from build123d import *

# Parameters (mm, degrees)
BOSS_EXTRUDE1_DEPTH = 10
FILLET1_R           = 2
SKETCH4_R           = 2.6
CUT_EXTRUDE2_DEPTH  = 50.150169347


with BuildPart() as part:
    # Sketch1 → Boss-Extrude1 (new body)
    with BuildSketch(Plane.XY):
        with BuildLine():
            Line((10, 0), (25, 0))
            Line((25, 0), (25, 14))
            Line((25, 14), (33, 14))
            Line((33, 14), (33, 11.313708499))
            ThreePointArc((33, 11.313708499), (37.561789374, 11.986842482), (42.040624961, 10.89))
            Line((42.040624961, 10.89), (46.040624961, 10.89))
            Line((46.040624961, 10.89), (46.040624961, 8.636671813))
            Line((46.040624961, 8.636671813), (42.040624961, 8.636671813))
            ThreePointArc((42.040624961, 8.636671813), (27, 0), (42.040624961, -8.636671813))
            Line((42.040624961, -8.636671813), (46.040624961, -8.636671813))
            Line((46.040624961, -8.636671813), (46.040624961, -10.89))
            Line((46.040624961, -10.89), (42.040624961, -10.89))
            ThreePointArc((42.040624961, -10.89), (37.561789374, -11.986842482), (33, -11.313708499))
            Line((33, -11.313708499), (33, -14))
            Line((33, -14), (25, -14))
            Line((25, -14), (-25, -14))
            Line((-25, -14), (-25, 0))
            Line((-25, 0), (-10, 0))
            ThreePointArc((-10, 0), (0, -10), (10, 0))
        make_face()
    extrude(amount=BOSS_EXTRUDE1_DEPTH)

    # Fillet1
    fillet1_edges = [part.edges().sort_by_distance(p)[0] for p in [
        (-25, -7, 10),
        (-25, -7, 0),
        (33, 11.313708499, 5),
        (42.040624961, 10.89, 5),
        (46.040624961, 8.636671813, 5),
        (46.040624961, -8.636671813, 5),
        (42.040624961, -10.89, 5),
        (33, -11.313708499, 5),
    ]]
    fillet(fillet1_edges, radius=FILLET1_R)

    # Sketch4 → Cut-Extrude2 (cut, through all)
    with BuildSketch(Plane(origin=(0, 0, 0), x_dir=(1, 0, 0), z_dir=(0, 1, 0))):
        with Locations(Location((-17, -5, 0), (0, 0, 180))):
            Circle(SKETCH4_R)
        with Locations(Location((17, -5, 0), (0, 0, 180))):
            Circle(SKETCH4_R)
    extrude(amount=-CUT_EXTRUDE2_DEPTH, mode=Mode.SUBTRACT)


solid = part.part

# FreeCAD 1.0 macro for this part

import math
import FreeCAD as App
import Part
import Sketcher
from FreeCAD import Vector
Q = App.Units.Quantity


def edges_at(feature, points):
    """Names of the edges that pass closest to the given points."""
    edges = feature.Shape.Edges
    near = lambda p: min(range(len(edges)), key=lambda i: edges[i].distToShape(Part.Vertex(*p))[0])
    return sorted({f"Edge{near(p) + 1}" for p in points})

doc = App.newDocument("Part")
body = doc.addObject("PartDesign::Body", "Body")

sketch1 = body.newObject("Sketcher::SketchObject", "Sketch")
sketch1.AttachmentSupport = (doc.getObject("XY_Plane"), [""])
sketch1.MapMode = "FlatFace"
sketch1.addGeometry(Part.LineSegment(Vector(25, 0, 0), Vector(10, 0, 0)), False)
sketch1.addGeometry(Part.ArcOfCircle(Part.Circle(Vector(0, 0, 0), Vector(0, 0, 1), 10), math.radians(180), math.radians(360)), False)
sketch1.addGeometry(Part.LineSegment(Vector(-10, 0, 0), Vector(-25, 0, 0)), False)
sketch1.addGeometry(Part.LineSegment(Vector(-25, 0, 0), Vector(-25, -14, 0)), False)
sketch1.addGeometry(Part.LineSegment(Vector(-25, -14, 0), Vector(33, -14, 0)), False)
sketch1.addGeometry(Part.LineSegment(Vector(33, -14, 0), Vector(33, -11.3, 0)), False)
sketch1.addGeometry(Part.ArcOfCircle(Part.Circle(Vector(37, 0, 0), Vector(0, 0, 1), 12), math.radians(-109), math.radians(-65)), False)
sketch1.addGeometry(Part.LineSegment(Vector(42, -10.9, 0), Vector(46, -10.9, 0)), False)
sketch1.addGeometry(Part.LineSegment(Vector(46, -10.9, 0), Vector(46, -8.6, 0)), False)
sketch1.addGeometry(Part.LineSegment(Vector(46, -8.6, 0), Vector(42, -8.6, 0)), False)
sketch1.addGeometry(Part.ArcOfCircle(Part.Circle(Vector(37, 0, 0), Vector(0, 0, 1), 10), math.radians(60), math.radians(300)), False)
sketch1.addGeometry(Part.LineSegment(Vector(42, 8.6, 0), Vector(46, 8.6, 0)), False)
sketch1.addGeometry(Part.LineSegment(Vector(46, 8.6, 0), Vector(46, 10.9, 0)), False)
sketch1.addGeometry(Part.LineSegment(Vector(46, 10.9, 0), Vector(42, 10.9, 0)), False)
sketch1.addGeometry(Part.ArcOfCircle(Part.Circle(Vector(37, 0, 0), Vector(0, 0, 1), 12), math.radians(65), math.radians(109)), False)
sketch1.addGeometry(Part.LineSegment(Vector(33, 11.3, 0), Vector(33, 14, 0)), False)
sketch1.addGeometry(Part.LineSegment(Vector(33, 14, 0), Vector(25, 14, 0)), False)
sketch1.addGeometry(Part.LineSegment(Vector(25, 14, 0), Vector(25, 0, 0)), False)
sketch1.addConstraint(Sketcher.Constraint("Coincident", 0, 2, 1, 2))
sketch1.addConstraint(Sketcher.Constraint("Coincident", 1, 1, 2, 1))
sketch1.addConstraint(Sketcher.Constraint("Coincident", 2, 2, 3, 1))
sketch1.addConstraint(Sketcher.Constraint("Coincident", 3, 2, 4, 1))
sketch1.addConstraint(Sketcher.Constraint("Coincident", 4, 2, 5, 1))
sketch1.addConstraint(Sketcher.Constraint("Coincident", 5, 2, 6, 1))
sketch1.addConstraint(Sketcher.Constraint("Coincident", 6, 2, 7, 1))
sketch1.addConstraint(Sketcher.Constraint("Coincident", 7, 2, 8, 1))
sketch1.addConstraint(Sketcher.Constraint("Coincident", 8, 2, 9, 1))
sketch1.addConstraint(Sketcher.Constraint("Coincident", 9, 2, 10, 2))
sketch1.addConstraint(Sketcher.Constraint("Coincident", 10, 1, 11, 1))
sketch1.addConstraint(Sketcher.Constraint("Coincident", 11, 2, 12, 1))
sketch1.addConstraint(Sketcher.Constraint("Coincident", 12, 2, 13, 1))
sketch1.addConstraint(Sketcher.Constraint("Coincident", 13, 2, 14, 1))
sketch1.addConstraint(Sketcher.Constraint("Coincident", 14, 2, 15, 1))
sketch1.addConstraint(Sketcher.Constraint("Coincident", 15, 2, 16, 1))
sketch1.addConstraint(Sketcher.Constraint("Coincident", 16, 2, 17, 1))
sketch1.addConstraint(Sketcher.Constraint("Coincident", 17, 2, 0, 1))
sketch1.addConstraint(Sketcher.Constraint("Horizontal", 0))
sketch1.addConstraint(Sketcher.Constraint("Horizontal", 2))
sketch1.addConstraint(Sketcher.Constraint("Vertical", 3))
sketch1.addConstraint(Sketcher.Constraint("Horizontal", 4))
sketch1.addConstraint(Sketcher.Constraint("Vertical", 5))
sketch1.addConstraint(Sketcher.Constraint("Horizontal", 7))
sketch1.addConstraint(Sketcher.Constraint("Vertical", 8))
sketch1.addConstraint(Sketcher.Constraint("Horizontal", 9))
sketch1.addConstraint(Sketcher.Constraint("Horizontal", 11))
sketch1.addConstraint(Sketcher.Constraint("Vertical", 12))
sketch1.addConstraint(Sketcher.Constraint("Horizontal", 13))
sketch1.addConstraint(Sketcher.Constraint("Vertical", 15))
sketch1.addConstraint(Sketcher.Constraint("Horizontal", 16))
sketch1.addConstraint(Sketcher.Constraint("Vertical", 17))
sketch1.addConstraint(Sketcher.Constraint("Coincident", 1, 3, -1, 1))
sketch1.addConstraint(Sketcher.Constraint("Coincident", 10, 3, 6, 3))
sketch1.addConstraint(Sketcher.Constraint("Coincident", 14, 3, 6, 3))
sketch1.addConstraint(Sketcher.Constraint("Equal", 1, 10))
sketch1.addConstraint(Sketcher.Constraint("Equal", 6, 14))
sketch1.addConstraint(Sketcher.Constraint("Symmetric", 3, 2, 16, 2, -1, 1))
sketch1.addConstraint(Sketcher.Constraint("Symmetric", 9, 2, 10, 1, -1))
sketch1.addConstraint(Sketcher.Constraint("Symmetric", 7, 2, 12, 2, -1))
sketch1.addConstraint(Sketcher.Constraint("PointOnObject", 0, 2, -1))
sketch1.addConstraint(Sketcher.Constraint("PointOnObject", 1, 1, -1))
sketch1.addConstraint(Sketcher.Constraint("Vertical", 6, 2, 9, 2))
sketch1.addConstraint(Sketcher.Constraint("Vertical", 5, 2, 14, 2))
sketch1.addConstraint(Sketcher.Constraint("Radius", 1, Q("10 mm")))
sketch1.addConstraint(Sketcher.Constraint("Radius", 6, Q("12 mm")))
sketch1.addConstraint(Sketcher.Constraint("DistanceX", 0, 2, 0, 1, Q("15 mm")))
sketch1.addConstraint(Sketcher.Constraint("DistanceX", 4, 1, 4, 2, Q("58 mm")))
sketch1.addConstraint(Sketcher.Constraint("DistanceX", 7, 1, 7, 2, Q("4 mm")))
sketch1.addConstraint(Sketcher.Constraint("DistanceY", 3, 2, 3, 1, Q("14 mm")))
sketch1.addConstraint(Sketcher.Constraint("DistanceX", -1, 1, 6, 3, Q("37 mm")))
sketch1.addConstraint(Sketcher.Constraint("DistanceY", 6, 2, -1, 1, Q("10.89 mm")))
pad1 = body.newObject("PartDesign::Pad", "Pad")
pad1.Profile = sketch1
pad1.Length = 10
doc.recompute()

fillet = body.newObject("PartDesign::Fillet", "Fillet")
fillet.Base = (pad1, edges_at(pad1, [
    (-25, -7, 10),
    (-25, -7, 0),
    (33, 11.314, 5),
    (42.041, 10.89, 5),
    (46.041, 8.637, 5),
    (46.041, -8.637, 5),
    (42.041, -10.89, 5),
    (33, -11.314, 5),
]))
fillet.Radius = 2

sketch2 = body.newObject("Sketcher::SketchObject", "Sketch001")
sketch2.AttachmentSupport = (doc.getObject("XZ_Plane"), [""])
sketch2.MapMode = "FlatFace"
sketch2.addGeometry(Part.Circle(Vector(-17, 5, 0), Vector(0, 0, 1), 2.6), False)
sketch2.addGeometry(Part.Circle(Vector(17, 5, 0), Vector(0, 0, 1), 2.6), False)
sketch2.addConstraint(Sketcher.Constraint("Equal", 0, 1))
sketch2.addConstraint(Sketcher.Constraint("Symmetric", 0, 3, 1, 3, -2))
sketch2.addConstraint(Sketcher.Constraint("Diameter", 0, Q("5.2 mm")))
sketch2.addConstraint(Sketcher.Constraint("DistanceX", 0, 3, -1, 1, Q("17 mm")))
sketch2.addConstraint(Sketcher.Constraint("DistanceY", -1, 1, 0, 3, Q("5 mm")))
pocket1 = body.newObject("PartDesign::Pocket", "Pocket")
pocket1.Profile = sketch2
pocket1.Type = "ThroughAll"
pocket1.Reversed = True

doc.recompute()
